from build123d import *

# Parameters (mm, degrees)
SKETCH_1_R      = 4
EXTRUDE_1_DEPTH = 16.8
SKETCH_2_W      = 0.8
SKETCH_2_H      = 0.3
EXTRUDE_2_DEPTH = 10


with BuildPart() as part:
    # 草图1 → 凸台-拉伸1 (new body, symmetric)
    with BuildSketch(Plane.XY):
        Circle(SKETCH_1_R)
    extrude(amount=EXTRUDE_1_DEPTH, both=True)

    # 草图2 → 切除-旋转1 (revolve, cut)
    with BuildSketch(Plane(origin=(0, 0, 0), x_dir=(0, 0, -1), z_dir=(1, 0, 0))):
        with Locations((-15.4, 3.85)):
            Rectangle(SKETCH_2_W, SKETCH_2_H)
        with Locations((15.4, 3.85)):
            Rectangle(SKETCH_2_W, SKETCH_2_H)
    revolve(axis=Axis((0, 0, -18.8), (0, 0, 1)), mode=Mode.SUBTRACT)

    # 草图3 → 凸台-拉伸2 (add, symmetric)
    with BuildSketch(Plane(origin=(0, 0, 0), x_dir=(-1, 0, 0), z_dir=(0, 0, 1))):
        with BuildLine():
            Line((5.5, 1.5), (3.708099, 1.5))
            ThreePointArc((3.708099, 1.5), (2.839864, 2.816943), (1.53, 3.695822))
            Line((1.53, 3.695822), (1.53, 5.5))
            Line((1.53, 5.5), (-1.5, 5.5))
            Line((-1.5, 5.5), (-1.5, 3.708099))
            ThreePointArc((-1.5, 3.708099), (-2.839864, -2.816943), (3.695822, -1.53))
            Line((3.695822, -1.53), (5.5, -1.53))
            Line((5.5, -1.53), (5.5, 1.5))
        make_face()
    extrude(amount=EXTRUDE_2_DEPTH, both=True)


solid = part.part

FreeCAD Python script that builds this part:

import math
import FreeCAD as App
import Part
import Sketcher
from FreeCAD import Vector


def add_polygon(sketch, points):
    """Adds a closed chain of lines whose ends are joined by coincident constraints."""
    first, n = sketch.GeometryCount, len(points)
    for a, b in zip(points, points[1:] + points[:1]):
        sketch.addGeometry(Part.LineSegment(App.Vector(*a, 0), App.Vector(*b, 0)), False)
    for i in range(n):
        sketch.addConstraint(Sketcher.Constraint("Coincident", first + i, 2, first + (i + 1) % n, 1))

doc = App.newDocument("Part")
params = doc.addObject("Spreadsheet::Sheet", "Params")
for row, (alias, value) in enumerate([
    ("sketch1_diameter", "8 mm"),
    ("pad1_length", "33.6 mm"),
    ("sketch2_width", "0.3 mm"),
    ("sketch2_height", "0.8 mm"),
    ("groove_angle", "360 deg"),
    ("sketch3_radius", "4 mm"),
    ("sketch3_width", "3.03 mm"),
    ("pad2_length", "20 mm"),
], start=1):
    params.set(f"A{row}", alias)
    params.set(f"B{row}", "=" + value)
    params.setAlias(f"B{row}", alias)

body = doc.addObject("PartDesign::Body", "Body")

# Sketch on XY plane
sketch1 = body.newObject("Sketcher::SketchObject", "Sketch")
sketch1.AttachmentSupport = (doc.getObject("XY_Plane"), [""])
sketch1.MapMode = "FlatFace"
sketch1.addGeometry(Part.Circle(Vector(0, 0, 0), Vector(0, 0, 1), 4), False)
sketch1.addConstraint([
    Sketcher.Constraint("Coincident", 0, 3, -1, 1),
    Sketcher.Constraint("Diameter", 0, 8.0),
])
sketch1.setExpression("Constraints[1]", "Params.sketch1_diameter")
pad1 = body.newObject("PartDesign::Pad", "Pad")
pad1.Profile = sketch1
pad1.setExpression("Length", "Params.pad1_length")
pad1.Midplane = True

# Sketch on YZ plane
sketch2 = body.newObject("Sketcher::SketchObject", "Sketch001")
sketch2.AttachmentSupport = (doc.getObject("YZ_Plane"), [""])
sketch2.MapMode = "FlatFace"
add_polygon(sketch2, [(4, 15.8), (3.7, 15.8), (3.7, 15), (4, 15)])  # lines 0-3
add_polygon(sketch2, [(4, -15), (3.7, -15), (3.7, -15.8), (4, -15.8)])  # lines 4-7
sketch2.addConstraint([
    Sketcher.Constraint("Horizontal", 0),
    Sketcher.Constraint("Vertical", 1),
    Sketcher.Constraint("Horizontal", 2),
    Sketcher.Constraint("Vertical", 3),
    Sketcher.Constraint("Horizontal", 4),
    Sketcher.Constraint("Vertical", 5),
    Sketcher.Constraint("Horizontal", 6),
    Sketcher.Constraint("Vertical", 7),
    Sketcher.Constraint("Symmetric", 1, 2, 4, 2, -1),
    Sketcher.Constraint("Symmetric", 3, 2, 6, 2, -1),
    Sketcher.Constraint("DistanceX", 0, 2, 0, 1, 0.3),
    Sketcher.Constraint("DistanceY", 1, 2, 1, 1, 0.8),
    Sketcher.Constraint("DistanceY", -1, 1, 1, 2, 15.0),
    Sketcher.Constraint("DistanceX", -1, 1, 2, 2, 4.0),
])
sketch2.setExpression("Constraints[18]", "Params.sketch2_width")
sketch2.setExpression("Constraints[19]", "Params.sketch2_height")
groove = body.newObject("PartDesign::Groove", "Groove")
groove.Profile = sketch2
groove.ReferenceAxis = (sketch2, ["V_Axis"])
groove.setExpression("Angle", "Params.groove_angle")

# Sketch on XY plane
sketch3 = body.newObject("Sketcher::SketchObject", "Sketch002")
sketch3.AttachmentSupport = (doc.getObject("XY_Plane"), [""])
sketch3.MapMode = "FlatFace"
sketch3.addGeometry([
    Part.LineSegment(Vector(-5.5, -1.5, 0), Vector(-3.7, -1.5, 0)),  # 0
    Part.ArcOfCircle(Part.Circle(Vector(0, 0, 0), Vector(0, 0, 1), 4), math.radians(-158), math.radians(-112)),  # 1
    Part.LineSegment(Vector(-1.5, -3.7, 0), Vector(-1.5, -5.5, 0)),  # 2
    Part.LineSegment(Vector(-1.5, -5.5, 0), Vector(1.5, -5.5, 0)),  # 3
    Part.LineSegment(Vector(1.5, -5.5, 0), Vector(1.5, -3.7, 0)),  # 4
    Part.ArcOfCircle(Part.Circle(Vector(0, 0, 0), Vector(0, 0, 1), 4), math.radians(-68), math.radians(158)),  # 5
    Part.LineSegment(Vector(-3.7, 1.5, 0), Vector(-5.5, 1.5, 0)),  # 6
    Part.LineSegment(Vector(-5.5, 1.5, 0), Vector(-5.5, -1.5, 0)),  # 7
], False)
sketch3.addConstraint([
    Sketcher.Constraint("Coincident", 0, 2, 1, 1),
    Sketcher.Constraint("Coincident", 1, 2, 2, 1),
    Sketcher.Constraint("Coincident", 2, 2, 3, 1),
    Sketcher.Constraint("Coincident", 3, 2, 4, 1),
    Sketcher.Constraint("Coincident", 4, 2, 5, 1),
    Sketcher.Constraint("Coincident", 5, 2, 6, 1),
    Sketcher.Constraint("Coincident", 6, 2, 7, 1),
    Sketcher.Constraint("Coincident", 7, 2, 0, 1),
    Sketcher.Constraint("Horizontal", 0),
    Sketcher.Constraint("Vertical", 2),
    Sketcher.Constraint("Horizontal", 3),
    Sketcher.Constraint("Vertical", 4),
    Sketcher.Constraint("Horizontal", 6),
    Sketcher.Constraint("Vertical", 7),
    Sketcher.Constraint("Coincident", 1, 3, -1, 1),
    Sketcher.Constraint("Coincident", 5, 3, -1, 1),
    Sketcher.Constraint("Equal", 6, 2),
    Sketcher.Constraint("Equal", 0, 4),
    Sketcher.Constraint("Equal", 3, 7),
    Sketcher.Constraint("Radius", 5, 4.0),
    Sketcher.Constraint("DistanceY", 2, 2, 0, 2, 4.0),
    Sketcher.Constraint("DistanceX", 3, 1, 3, 2, 3.03),
    Sketcher.Constraint("DistanceY", 0, 2, -1, 1, 1.5),
    Sketcher.Constraint("DistanceX", -1, 1, 3, 2, 1.5),
])
sketch3.setExpression("Constraints[19]", "Params.sketch3_radius")
sketch3.setExpression("Constraints[21]", "Params.sketch3_width")
pad2 = body.newObject("PartDesign::Pad", "Pad001")
pad2.Profile = sketch3
pad2.setExpression("Length", "Params.pad2_length")
pad2.Midplane = True

doc.recompute()
